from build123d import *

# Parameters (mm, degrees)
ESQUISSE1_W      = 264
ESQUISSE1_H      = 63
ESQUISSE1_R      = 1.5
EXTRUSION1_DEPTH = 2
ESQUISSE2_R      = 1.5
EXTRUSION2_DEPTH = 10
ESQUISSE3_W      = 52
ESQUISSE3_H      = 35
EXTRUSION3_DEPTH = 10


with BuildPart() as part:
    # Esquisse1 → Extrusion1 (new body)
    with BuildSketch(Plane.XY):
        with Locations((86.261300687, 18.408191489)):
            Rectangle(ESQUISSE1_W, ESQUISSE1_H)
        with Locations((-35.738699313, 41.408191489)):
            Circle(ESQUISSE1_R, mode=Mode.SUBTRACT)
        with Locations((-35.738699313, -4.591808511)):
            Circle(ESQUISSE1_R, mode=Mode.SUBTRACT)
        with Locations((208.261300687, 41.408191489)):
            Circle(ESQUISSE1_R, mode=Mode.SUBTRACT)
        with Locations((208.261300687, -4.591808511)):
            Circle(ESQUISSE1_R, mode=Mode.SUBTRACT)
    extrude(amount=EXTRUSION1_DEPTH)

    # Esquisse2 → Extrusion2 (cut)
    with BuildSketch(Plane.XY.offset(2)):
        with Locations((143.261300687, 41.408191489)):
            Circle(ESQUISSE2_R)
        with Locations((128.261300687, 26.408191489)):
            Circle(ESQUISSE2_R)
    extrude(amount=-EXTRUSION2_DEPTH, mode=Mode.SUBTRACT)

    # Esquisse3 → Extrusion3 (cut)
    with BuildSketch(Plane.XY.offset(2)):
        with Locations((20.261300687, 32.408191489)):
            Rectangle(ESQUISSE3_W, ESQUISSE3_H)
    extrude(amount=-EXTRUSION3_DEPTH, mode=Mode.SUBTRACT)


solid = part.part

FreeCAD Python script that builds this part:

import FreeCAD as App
import Part
import Sketcher

V = App.Vector
Q = App.Units.Quantity

doc = App.newDocument("Part")
body = doc.addObject("PartDesign::Body", "Body")

sketch1 = body.newObject("Sketcher::SketchObject", "Sketch")
sketch1.AttachmentSupport = (doc.getObject("XY_Plane"), [""])
sketch1.MapMode = "FlatFace"
sketch1.addGeometry(Part.LineSegment(V(-45.7, 49.9, 0), V(-45.7, -13.1, 0)), False)
sketch1.addGeometry(Part.LineSegment(V(-45.7, -13.1, 0), V(218.3, -13.1, 0)), False)
sketch1.addGeometry(Part.LineSegment(V(218.3, -13.1, 0), V(218.3, 49.9, 0)), False)
sketch1.addGeometry(Part.LineSegment(V(218.3, 49.9, 0), V(-45.7, 49.9, 0)), False)
sketch1.addGeometry(Part.Circle(V(-35.7, -4.6, 0), V(0, 0, 1), 1.5), False)
sketch1.addGeometry(Part.Circle(V(208.3, -4.6, 0), V(0, 0, 1), 1.5), False)
sketch1.addGeometry(Part.Circle(V(-35.7, 41.4, 0), V(0, 0, 1), 1.5), False)
sketch1.addGeometry(Part.Circle(V(208.3, 41.4, 0), V(0, 0, 1), 1.5), False)
sketch1.addConstraint(Sketcher.Constraint("Coincident", 0, 2, 1, 1))
sketch1.addConstraint(Sketcher.Constraint("Coincident", 1, 2, 2, 1))
sketch1.addConstraint(Sketcher.Constraint("Coincident", 2, 2, 3, 1))
sketch1.addConstraint(Sketcher.Constraint("Coincident", 3, 2, 0, 1))
sketch1.addConstraint(Sketcher.Constraint("Vertical", 0))
sketch1.addConstraint(Sketcher.Constraint("Horizontal", 1))
sketch1.addConstraint(Sketcher.Constraint("Vertical", 2))
sketch1.addConstraint(Sketcher.Constraint("Horizontal", 3))
sketch1.addConstraint(Sketcher.Constraint("Equal", 4, 5))
sketch1.addConstraint(Sketcher.Constraint("Equal", 5, 6))
sketch1.addConstraint(Sketcher.Constraint("Equal", 6, 7))
sketch1.addConstraint(Sketcher.Constraint("Horizontal", 4, 3, 5, 3))
sketch1.addConstraint(Sketcher.Constraint("Horizontal", 6, 3, 7, 3))
sketch1.addConstraint(Sketcher.Constraint("Vertical", 4, 3, 6, 3))
sketch1.addConstraint(Sketcher.Constraint("Vertical", 5, 3, 7, 3))
sketch1.addConstraint(Sketcher.Constraint("Diameter", 4, Q("3 mm")))
sketch1.addConstraint(Sketcher.Constraint("DistanceX", 1, 1, 1, 2, Q("264 mm")))
sketch1.addConstraint(Sketcher.Constraint("DistanceY", 0, 2, 0, 1, Q("63 mm")))
sketch1.addConstraint(Sketcher.Constraint("DistanceX", 4, 3, 5, 3, Q("244 mm")))
sketch1.addConstraint(Sketcher.Constraint("DistanceY", 4, 3, 6, 3, Q("46 mm")))
sketch1.addConstraint(Sketcher.Constraint("DistanceX", 0, 2, 4, 3, Q("10 mm")))
sketch1.addConstraint(Sketcher.Constraint("DistanceY", 0, 2, 4, 3, Q("8.5 mm")))
sketch1.addConstraint(Sketcher.Constraint("DistanceX", 4, 3, -1, 1, Q("35.738699 mm")))
sketch1.addConstraint(Sketcher.Constraint("DistanceY", 4, 3, -1, 1, Q("4.591809 mm")))
pad1 = body.newObject("PartDesign::Pad", "Pad")
pad1.Profile = sketch1
pad1.Length = 2

sketch2 = body.newObject("Sketcher::SketchObject", "Sketch001")
sketch2.AttachmentSupport = (doc.getObject("XY_Plane"), [""])
sketch2.MapMode = "FlatFace"
sketch2.AttachmentOffset = App.Placement(V(0, 0, 2), App.Rotation())
sketch2.addGeometry(Part.Circle(V(143.3, 41.4, 0), V(0, 0, 1), 1.5), False)
sketch2.addGeometry(Part.Circle(V(128.3, 26.4, 0), V(0, 0, 1), 1.5), False)
sketch2.addConstraint(Sketcher.Constraint("Equal", 0, 1))
sketch2.addConstraint(Sketcher.Constraint("Diameter", 0, Q("3 mm")))
sketch2.addConstraint(Sketcher.Constraint("DistanceX", 1, 3, 0, 3, Q("15 mm")))
sketch2.addConstraint(Sketcher.Constraint("DistanceY", 1, 3, 0, 3, Q("15 mm")))
sketch2.addConstraint(Sketcher.Constraint("DistanceX", -1, 1, 0, 3, Q("143.261301 mm")))
sketch2.addConstraint(Sketcher.Constraint("DistanceY", -1, 1, 0, 3, Q("41.408191 mm")))
pocket1 = body.newObject("PartDesign::Pocket", "Pocket")
pocket1.Profile = sketch2
pocket1.Length = 10

sketch3 = body.newObject("Sketcher::SketchObject", "Sketch002")
sketch3.AttachmentSupport = (doc.getObject("XY_Plane"), [""])
sketch3.MapMode = "FlatFace"
sketch3.AttachmentOffset = App.Placement(V(0, 0, 2), App.Rotation())
sketch3.addGeometry(Part.LineSegment(V(-6, 50, 0), V(-6, 15, 0)), False)
sketch3.addGeometry(Part.LineSegment(V(-6, 15, 0), V(46, 15, 0)), False)
sketch3.addGeometry(Part.LineSegment(V(46, 15, 0), V(46, 50, 0)), False)
sketch3.addGeometry(Part.LineSegment(V(46, 50, 0), V(-6, 50, 0)), False)
sketch3.addConstraint(Sketcher.Constraint("Coincident", 0, 2, 1, 1))
sketch3.addConstraint(Sketcher.Constraint("Coincident", 1, 2, 2, 1))
sketch3.addConstraint(Sketcher.Constraint("Coincident", 2, 2, 3, 1))
sketch3.addConstraint(Sketcher.Constraint("Coincident", 3, 2, 0, 1))
sketch3.addConstraint(Sketcher.Constraint("Vertical", 0))
sketch3.addConstraint(Sketcher.Constraint("Horizontal", 1))
sketch3.addConstraint(Sketcher.Constraint("Vertical", 2))
sketch3.addConstraint(Sketcher.Constraint("Horizontal", 3))
sketch3.addConstraint(Sketcher.Constraint("DistanceX", 1, 1, 1, 2, Q("52 mm")))
sketch3.addConstraint(Sketcher.Constraint("DistanceY", 0, 2, 0, 1, Q("35 mm")))
sketch3.addConstraint(Sketcher.Constraint("DistanceX", 0, 2, -1, 1, Q("5.738699 mm")))
sketch3.addConstraint(Sketcher.Constraint("DistanceY", -1, 1, 0, 2, Q("14.908191 mm")))
pocket2 = body.newObject("PartDesign::Pocket", "Pocket001")
pocket2.Profile = sketch3
pocket2.Length = 10

doc.recompute()
